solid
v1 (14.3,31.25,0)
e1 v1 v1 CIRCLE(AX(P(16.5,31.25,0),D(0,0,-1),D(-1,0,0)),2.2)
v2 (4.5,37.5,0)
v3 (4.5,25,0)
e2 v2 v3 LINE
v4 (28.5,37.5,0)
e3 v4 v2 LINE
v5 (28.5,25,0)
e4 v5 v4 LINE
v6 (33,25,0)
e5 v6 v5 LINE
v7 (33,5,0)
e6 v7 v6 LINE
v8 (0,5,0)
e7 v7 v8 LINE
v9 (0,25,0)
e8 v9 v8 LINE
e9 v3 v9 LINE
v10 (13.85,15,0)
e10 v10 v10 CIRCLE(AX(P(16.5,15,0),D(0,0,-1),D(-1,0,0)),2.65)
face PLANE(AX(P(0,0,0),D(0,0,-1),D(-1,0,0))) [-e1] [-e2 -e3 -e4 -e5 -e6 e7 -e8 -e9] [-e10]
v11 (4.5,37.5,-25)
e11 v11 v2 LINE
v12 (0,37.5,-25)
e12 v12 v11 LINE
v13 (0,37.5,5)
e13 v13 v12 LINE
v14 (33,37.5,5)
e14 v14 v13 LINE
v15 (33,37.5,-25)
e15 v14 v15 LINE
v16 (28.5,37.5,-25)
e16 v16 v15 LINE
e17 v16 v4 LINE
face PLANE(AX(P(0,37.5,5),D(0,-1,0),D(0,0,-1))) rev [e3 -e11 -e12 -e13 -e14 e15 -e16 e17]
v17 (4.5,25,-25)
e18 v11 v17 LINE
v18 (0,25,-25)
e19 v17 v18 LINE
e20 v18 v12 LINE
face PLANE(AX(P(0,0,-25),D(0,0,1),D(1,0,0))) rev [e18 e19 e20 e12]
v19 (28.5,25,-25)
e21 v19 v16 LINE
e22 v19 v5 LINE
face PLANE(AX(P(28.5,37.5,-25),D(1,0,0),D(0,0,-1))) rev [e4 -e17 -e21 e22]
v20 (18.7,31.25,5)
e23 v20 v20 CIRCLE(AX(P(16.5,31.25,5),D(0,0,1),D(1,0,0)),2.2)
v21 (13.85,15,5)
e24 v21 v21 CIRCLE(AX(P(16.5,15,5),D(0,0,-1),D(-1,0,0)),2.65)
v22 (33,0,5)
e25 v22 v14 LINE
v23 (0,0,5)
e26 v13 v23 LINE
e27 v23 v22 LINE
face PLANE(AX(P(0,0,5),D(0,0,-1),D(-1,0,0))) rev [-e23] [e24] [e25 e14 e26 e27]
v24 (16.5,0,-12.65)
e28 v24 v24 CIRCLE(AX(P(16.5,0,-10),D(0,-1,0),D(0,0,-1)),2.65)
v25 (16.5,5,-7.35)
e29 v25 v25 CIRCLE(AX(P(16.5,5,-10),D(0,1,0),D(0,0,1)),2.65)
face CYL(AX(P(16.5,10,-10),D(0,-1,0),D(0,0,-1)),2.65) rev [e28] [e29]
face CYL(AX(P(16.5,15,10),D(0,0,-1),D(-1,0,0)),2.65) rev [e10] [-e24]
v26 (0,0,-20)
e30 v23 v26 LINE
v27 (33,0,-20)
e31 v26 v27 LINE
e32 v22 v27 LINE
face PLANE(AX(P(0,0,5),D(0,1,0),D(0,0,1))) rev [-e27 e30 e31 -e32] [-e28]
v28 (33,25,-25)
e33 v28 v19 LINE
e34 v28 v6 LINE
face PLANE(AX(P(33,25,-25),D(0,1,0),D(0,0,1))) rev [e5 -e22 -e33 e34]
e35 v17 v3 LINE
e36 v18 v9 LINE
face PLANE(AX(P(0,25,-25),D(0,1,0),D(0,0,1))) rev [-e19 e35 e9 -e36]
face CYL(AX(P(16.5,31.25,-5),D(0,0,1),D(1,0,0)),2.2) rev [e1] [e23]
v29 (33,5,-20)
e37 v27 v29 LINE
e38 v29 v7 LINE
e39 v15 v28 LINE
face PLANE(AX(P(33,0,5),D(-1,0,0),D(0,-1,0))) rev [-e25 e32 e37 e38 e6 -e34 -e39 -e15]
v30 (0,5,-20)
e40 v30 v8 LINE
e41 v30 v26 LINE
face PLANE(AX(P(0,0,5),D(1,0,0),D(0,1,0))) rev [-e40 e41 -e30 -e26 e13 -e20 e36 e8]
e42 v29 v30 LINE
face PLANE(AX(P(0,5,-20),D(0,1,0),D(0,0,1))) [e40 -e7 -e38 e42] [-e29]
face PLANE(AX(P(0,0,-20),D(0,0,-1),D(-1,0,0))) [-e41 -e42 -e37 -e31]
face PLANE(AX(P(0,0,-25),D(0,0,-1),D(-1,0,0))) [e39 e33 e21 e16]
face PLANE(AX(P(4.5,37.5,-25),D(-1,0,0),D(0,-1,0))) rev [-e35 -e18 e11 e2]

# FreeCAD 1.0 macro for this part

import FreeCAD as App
import Part
import Sketcher

V = App.Vector
Q = App.Units.Quantity

doc = App.newDocument("Part")
params = doc.addObject("Spreadsheet::Sheet", "Params")
for row, (alias, value) in enumerate([
    ("sketch1_width", "33 mm"),
    ("sketch1_height", "37.5 mm"),
    ("pad1_length", "5 mm"),
    ("sketch2_width", "33 mm"),
    ("sketch2_height", "5 mm"),
    ("pad2_length", "20 mm"),
    ("sketch3_diameter", "5.3 mm"),
    ("pocket1_length", "10 mm"),
    ("sketch4_diameter", "5.3 mm"),
    ("pocket2_length", "10 mm"),
    ("sketch5_width", "4.5 mm"),
    ("sketch5_height", "12.5 mm"),
    ("pad3_length", "25 mm"),
    ("sketch6_diameter", "4.4 mm"),
    ("pocket3_length", "10 mm"),
], start=1):
    params.set(f"A{row}", alias)
    params.set(f"B{row}", "=" + value)
    params.setAlias(f"B{row}", alias)

body = doc.addObject("PartDesign::Body", "Body")

sketch1 = body.newObject("Sketcher::SketchObject", "Sketch")
sketch1.AttachmentSupport = (doc.getObject("XY_Plane"), [""])
sketch1.MapMode = "FlatFace"
sketch1.addGeometry(Part.LineSegment(V(0, 38, 0), V(0, 0, 0)), False)
sketch1.addGeometry(Part.LineSegment(V(0, 0, 0), V(33, 0, 0)), False)
sketch1.addGeometry(Part.LineSegment(V(33, 0, 0), V(33, 38, 0)), False)
sketch1.addGeometry(Part.LineSegment(V(33, 38, 0), V(0, 38, 0)), False)
sketch1.addConstraint(Sketcher.Constraint("Coincident", 0, 2, 1, 1))
sketch1.addConstraint(Sketcher.Constraint("Coincident", 1, 2, 2, 1))
sketch1.addConstraint(Sketcher.Constraint("Coincident", 2, 2, 3, 1))
sketch1.addConstraint(Sketcher.Constraint("Coincident", 3, 2, 0, 1))
sketch1.addConstraint(Sketcher.Constraint("Vertical", 0))
sketch1.addConstraint(Sketcher.Constraint("Horizontal", 1))
sketch1.addConstraint(Sketcher.Constraint("Vertical", 2))
sketch1.addConstraint(Sketcher.Constraint("Horizontal", 3))
sketch1.addConstraint(Sketcher.Constraint("Coincident", 0, 2, -1, 1))
sketch1.addConstraint(Sketcher.Constraint("DistanceX", 1, 1, 1, 2, Q("33 mm")))
sketch1.addConstraint(Sketcher.Constraint("DistanceY", 0, 2, 0, 1, Q("37.5 mm")))
sketch1.setExpression("Constraints[9]", "Params.sketch1_width")
sketch1.setExpression("Constraints[10]", "Params.sketch1_height")
pad1 = body.newObject("PartDesign::Pad", "Pad")
pad1.Profile = sketch1
pad1.setExpression("Length", "Params.pad1_length")

sketch2 = body.newObject("Sketcher::SketchObject", "Sketch001")
sketch2.AttachmentSupport = (doc.getObject("XY_Plane"), [""])
sketch2.MapMode = "FlatFace"
sketch2.addGeometry(Part.LineSegment(V(0, 5, 0), V(0, 0, 0)), False)
sketch2.addGeometry(Part.LineSegment(V(0, 0, 0), V(33, 0, 0)), False)
sketch2.addGeometry(Part.LineSegment(V(33, 0, 0), V(33, 5, 0)), False)
sketch2.addGeometry(Part.LineSegment(V(33, 5, 0), V(0, 5, 0)), False)
sketch2.addConstraint(Sketcher.Constraint("Coincident", 0, 2, 1, 1))
sketch2.addConstraint(Sketcher.Constraint("Coincident", 1, 2, 2, 1))
sketch2.addConstraint(Sketcher.Constraint("Coincident", 2, 2, 3, 1))
sketch2.addConstraint(Sketcher.Constraint("Coincident", 3, 2, 0, 1))
sketch2.addConstraint(Sketcher.Constraint("Vertical", 0))
sketch2.addConstraint(Sketcher.Constraint("Horizontal", 1))
sketch2.addConstraint(Sketcher.Constraint("Vertical", 2))
sketch2.addConstraint(Sketcher.Constraint("Horizontal", 3))
sketch2.addConstraint(Sketcher.Constraint("Coincident", 0, 2, -1, 1))
sketch2.addConstraint(Sketcher.Constraint("DistanceX", 1, 1, 1, 2, Q("33 mm")))
sketch2.addConstraint(Sketcher.Constraint("DistanceY", 0, 2, 0, 1, Q("5 mm")))
sketch2.setExpression("Constraints[9]", "Params.sketch2_width")
sketch2.setExpression("Constraints[10]", "Params.sketch2_height")
pad2 = body.newObject("PartDesign::Pad", "Pad001")
pad2.Profile = sketch2
pad2.setExpression("Length", "Params.pad2_length")
pad2.Reversed = True

sketch3 = body.newObject("Sketcher::SketchObject", "Sketch002")
sketch3.AttachmentSupport = (doc.getObject("XZ_Plane"), [""])
sketch3.MapMode = "FlatFace"
sketch3.addGeometry(Part.Circle(V(16.5, -10, 0), V(0, 0, 1), 2.6), False)
sketch3.addConstraint(Sketcher.Constraint("Diameter", 0, Q("5.3 mm")))
sketch3.addConstraint(Sketcher.Constraint("DistanceY", 0, 3, -1, 1, Q("10 mm")))
sketch3.addConstraint(Sketcher.Constraint("DistanceX", -1, 1, 0, 3, Q("16.5 mm")))
sketch3.setExpression("Constraints[0]", "Params.sketch3_diameter")
pocket1 = body.newObject("PartDesign::Pocket", "Pocket")
pocket1.Profile = sketch3
pocket1.setExpression("Length", "Params.pocket1_length")

sketch4 = body.newObject("Sketcher::SketchObject", "Sketch003")
sketch4.AttachmentSupport = (doc.getObject("XY_Plane"), [""])
sketch4.MapMode = "FlatFace"
sketch4.addGeometry(Part.Circle(V(16.5, 15, 0), V(0, 0, 1), 2.6), False)
sketch4.addConstraint(Sketcher.Constraint("Diameter", 0, Q("5.3 mm")))
sketch4.addConstraint(Sketcher.Constraint("DistanceY", -1, 1, 0, 3, Q("15 mm")))
sketch4.addConstraint(Sketcher.Constraint("DistanceX", -1, 1, 0, 3, Q("16.5 mm")))
sketch4.setExpression("Constraints[0]", "Params.sketch4_diameter")
pocket2 = body.newObject("PartDesign::Pocket", "Pocket001")
pocket2.Profile = sketch4
pocket2.setExpression("Length", "Params.pocket2_length")
pocket2.Reversed = True

sketch5 = body.newObject("Sketcher::SketchObject", "Sketch004")
sketch5.AttachmentSupport = (doc.getObject("XY_Plane"), [""])
sketch5.MapMode = "FlatFace"
sketch5.addGeometry(Part.LineSegment(V(33, 37.5, 0), V(33, 25, 0)), False)
sketch5.addGeometry(Part.LineSegment(V(33, 25, 0), V(28.5, 25, 0)), False)
sketch5.addGeometry(Part.LineSegment(V(28.5, 25, 0), V(28.5, 37.5, 0)), False)
sketch5.addGeometry(Part.LineSegment(V(28.5, 37.5, 0), V(33, 37.5, 0)), False)
sketch5.addGeometry(Part.LineSegment(V(4.5, 37.5, 0), V(4.5, 25, 0)), False)
sketch5.addGeometry(Part.LineSegment(V(4.5, 25, 0), V(0, 25, 0)), False)
sketch5.addGeometry(Part.LineSegment(V(0, 25, 0), V(0, 37.5, 0)), False)
sketch5.addGeometry(Part.LineSegment(V(0, 37.5, 0), V(4.5, 37.5, 0)), False)
sketch5.addConstraint(Sketcher.Constraint("Coincident", 0, 2, 1, 1))
sketch5.addConstraint(Sketcher.Constraint("Coincident", 1, 2, 2, 1))
sketch5.addConstraint(Sketcher.Constraint("Coincident", 2, 2, 3, 1))
sketch5.addConstraint(Sketcher.Constraint("Coincident", 3, 2, 0, 1))
sketch5.addConstraint(Sketcher.Constraint("Coincident", 4, 2, 5, 1))
sketch5.addConstraint(Sketcher.Constraint("Coincident", 5, 2, 6, 1))
sketch5.addConstraint(Sketcher.Constraint("Coincident", 6, 2, 7, 1))
sketch5.addConstraint(Sketcher.Constraint("Coincident", 7, 2, 4, 1))
sketch5.addConstraint(Sketcher.Constraint("Vertical", 0))
sketch5.addConstraint(Sketcher.Constraint("Horizontal", 1))
sketch5.addConstraint(Sketcher.Constraint("Vertical", 2))
sketch5.addConstraint(Sketcher.Constraint("Horizontal", 3))
sketch5.addConstraint(Sketcher.Constraint("Vertical", 4))
sketch5.addConstraint(Sketcher.Constraint("Horizontal", 5))
sketch5.addConstraint(Sketcher.Constraint("Vertical", 6))
sketch5.addConstraint(Sketcher.Constraint("Horizontal", 7))
sketch5.addConstraint(Sketcher.Constraint("PointOnObject", 5, 2, -2))
sketch5.addConstraint(Sketcher.Constraint("Horizontal", 1, 2, 4, 2))
sketch5.addConstraint(Sketcher.Constraint("Horizontal", 3, 2, 6, 2))
sketch5.addConstraint(Sketcher.Constraint("Equal", 3, 5))
sketch5.addConstraint(Sketcher.Constraint("DistanceX", 1, 2, 1, 1, Q("4.5 mm")))
sketch5.addConstraint(Sketcher.Constraint("DistanceY", 0, 2, 0, 1, Q("12.5 mm")))
sketch5.addConstraint(Sketcher.Constraint("DistanceX", -1, 1, 0, 2, Q("33 mm")))
sketch5.addConstraint(Sketcher.Constraint("DistanceY", -1, 1, 0, 2, Q("25 mm")))
sketch5.setExpression("Constraints[20]", "Params.sketch5_width")
sketch5.setExpression("Constraints[21]", "Params.sketch5_height")
pad3 = body.newObject("PartDesign::Pad", "Pad002")
pad3.Profile = sketch5
pad3.setExpression("Length", "Params.pad3_length")
pad3.Reversed = True

sketch6 = body.newObject("Sketcher::SketchObject", "Sketch005")
sketch6.AttachmentSupport = (doc.getObject("XY_Plane"), [""])
sketch6.MapMode = "FlatFace"
sketch6.AttachmentOffset = App.Placement(V(0, 0, 5), App.Rotation())
sketch6.addGeometry(Part.Circle(V(16.5, 31.2, 0), V(0, 0, 1), 2.2), False)
sketch6.addConstraint(Sketcher.Constraint("Diameter", 0, Q("4.4 mm")))
sketch6.addConstraint(Sketcher.Constraint("DistanceX", -1, 1, 0, 3, Q("16.5 mm")))
sketch6.addConstraint(Sketcher.Constraint("DistanceY", -1, 1, 0, 3, Q("31.25 mm")))
sketch6.setExpression("Constraints[0]", "Params.sketch6_diameter")
pocket3 = body.newObject("PartDesign::Pocket", "Pocket002")
pocket3.Profile = sketch6
pocket3.setExpression("Length", "Params.pocket3_length")

doc.recompute()
